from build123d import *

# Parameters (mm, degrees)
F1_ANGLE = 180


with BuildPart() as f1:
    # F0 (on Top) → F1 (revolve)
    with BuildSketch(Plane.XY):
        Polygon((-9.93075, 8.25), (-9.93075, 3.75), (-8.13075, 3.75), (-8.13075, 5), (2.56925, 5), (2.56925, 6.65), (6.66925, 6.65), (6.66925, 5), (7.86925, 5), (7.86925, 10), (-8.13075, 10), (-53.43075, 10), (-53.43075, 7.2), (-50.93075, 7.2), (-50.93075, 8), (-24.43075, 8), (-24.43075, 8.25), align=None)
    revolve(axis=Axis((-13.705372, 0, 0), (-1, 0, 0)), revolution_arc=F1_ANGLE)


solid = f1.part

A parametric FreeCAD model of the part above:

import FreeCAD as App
import Part
import Sketcher

V = App.Vector
Q = App.Units.Quantity

doc = App.newDocument("Part")
body = doc.addObject("PartDesign::Body", "Body")

# Sketch on XY plane
sketch1 = body.newObject("Sketcher::SketchObject", "Sketch")
sketch1.AttachmentSupport = (doc.getObject("XY_Plane"), [""])
sketch1.MapMode = "FlatFace"
sketch1.addGeometry(Part.LineSegment(V(-9.93, 8.25, 0), V(-9.93, 3.75, 0)), False)
sketch1.addGeometry(Part.LineSegment(V(-9.93, 3.75, 0), V(-8.13, 3.75, 0)), False)
sketch1.addGeometry(Part.LineSegment(V(-8.13, 3.75, 0), V(-8.13, 5, 0)), False)
sketch1.addGeometry(Part.LineSegment(V(-8.13, 5, 0), V(2.57, 5, 0)), False)
sketch1.addGeometry(Part.LineSegment(V(2.57, 5, 0), V(2.57, 6.65, 0)), False)
sketch1.addGeometry(Part.LineSegment(V(2.57, 6.65, 0), V(6.67, 6.65, 0)), False)
sketch1.addGeometry(Part.LineSegment(V(6.67, 6.65, 0), V(6.67, 5, 0)), False)
sketch1.addGeometry(Part.LineSegment(V(6.67, 5, 0), V(7.87, 5, 0)), False)
sketch1.addGeometry(Part.LineSegment(V(7.87, 5, 0), V(7.87, 10, 0)), False)
sketch1.addGeometry(Part.LineSegment(V(7.87, 10, 0), V(-53.43, 10, 0)), False)
sketch1.addGeometry(Part.LineSegment(V(-53.43, 10, 0), V(-53.43, 7.2, 0)), False)
sketch1.addGeometry(Part.LineSegment(V(-53.43, 7.2, 0), V(-50.93, 7.2, 0)), False)
sketch1.addGeometry(Part.LineSegment(V(-50.93, 7.2, 0), V(-50.93, 8, 0)), False)
sketch1.addGeometry(Part.LineSegment(V(-50.93, 8, 0), V(-24.43, 8, 0)), False)
sketch1.addGeometry(Part.LineSegment(V(-24.43, 8, 0), V(-24.43, 8.25, 0)), False)
sketch1.addGeometry(Part.LineSegment(V(-24.43, 8.25, 0), V(-9.93, 8.25, 0)), False)
sketch1.addConstraint(Sketcher.Constraint("Coincident", 0, 2, 1, 1))
sketch1.addConstraint(Sketcher.Constraint("Coincident", 1, 2, 2, 1))
sketch1.addConstraint(Sketcher.Constraint("Coincident", 2, 2, 3, 1))
sketch1.addConstraint(Sketcher.Constraint("Coincident", 3, 2, 4, 1))
sketch1.addConstraint(Sketcher.Constraint("Coincident", 4, 2, 5, 1))
sketch1.addConstraint(Sketcher.Constraint("Coincident", 5, 2, 6, 1))
sketch1.addConstraint(Sketcher.Constraint("Coincident", 6, 2, 7, 1))
sketch1.addConstraint(Sketcher.Constraint("Coincident", 7, 2, 8, 1))
sketch1.addConstraint(Sketcher.Constraint("Coincident", 8, 2, 9, 1))
sketch1.addConstraint(Sketcher.Constraint("Coincident", 9, 2, 10, 1))
sketch1.addConstraint(Sketcher.Constraint("Coincident", 10, 2, 11, 1))
sketch1.addConstraint(Sketcher.Constraint("Coincident", 11, 2, 12, 1))
sketch1.addConstraint(Sketcher.Constraint("Coincident", 12, 2, 13, 1))
sketch1.addConstraint(Sketcher.Constraint("Coincident", 13, 2, 14, 1))
sketch1.addConstraint(Sketcher.Constraint("Coincident", 14, 2, 15, 1))
sketch1.addConstraint(Sketcher.Constraint("Coincident", 15, 2, 0, 1))
sketch1.addConstraint(Sketcher.Constraint("Vertical", 0))
sketch1.addConstraint(Sketcher.Constraint("Horizontal", 1))
sketch1.addConstraint(Sketcher.Constraint("Vertical", 2))
sketch1.addConstraint(Sketcher.Constraint("Horizontal", 3))
sketch1.addConstraint(Sketcher.Constraint("Vertical", 4))
sketch1.addConstraint(Sketcher.Constraint("Horizontal", 5))
sketch1.addConstraint(Sketcher.Constraint("Vertical", 6))
sketch1.addConstraint(Sketcher.Constraint("Horizontal", 7))
sketch1.addConstraint(Sketcher.Constraint("Vertical", 8))
sketch1.addConstraint(Sketcher.Constraint("Horizontal", 9))
sketch1.addConstraint(Sketcher.Constraint("Vertical", 10))
sketch1.addConstraint(Sketcher.Constraint("Horizontal", 11))
sketch1.addConstraint(Sketcher.Constraint("Vertical", 12))
sketch1.addConstraint(Sketcher.Constraint("Horizontal", 13))
sketch1.addConstraint(Sketcher.Constraint("Vertical", 14))
sketch1.addConstraint(Sketcher.Constraint("Horizontal", 15))
sketch1.addConstraint(Sketcher.Constraint("Horizontal", 3, 2, 6, 2))
sketch1.addConstraint(Sketcher.Constraint("DistanceY", 8, 1, 8, 2, Q("5 mm")))
sketch1.addConstraint(Sketcher.Constraint("DistanceX", 1, 1, 1, 2, Q("1.8 mm")))
sketch1.addConstraint(Sketcher.Constraint("DistanceX", 3, 1, 3, 2, Q("10.7 mm")))
sketch1.addConstraint(Sketcher.Constraint("DistanceX", 5, 1, 5, 2, Q("4.1 mm")))
sketch1.addConstraint(Sketcher.Constraint("DistanceX", 7, 1, 7, 2, Q("1.2 mm")))
sketch1.addConstraint(Sketcher.Constraint("DistanceX", 9, 2, 9, 1, Q("61.3 mm")))
sketch1.addConstraint(Sketcher.Constraint("DistanceX", 11, 1, 11, 2, Q("2.5 mm")))
sketch1.addConstraint(Sketcher.Constraint("DistanceX", 13, 1, 13, 2, Q("26.5 mm")))
sketch1.addConstraint(Sketcher.Constraint("DistanceY", 0, 2, 0, 1, Q("4.5 mm")))
sketch1.addConstraint(Sketcher.Constraint("DistanceY", 10, 2, 10, 1, Q("2.8 mm")))
sketch1.addConstraint(Sketcher.Constraint("DistanceY", 12, 1, 12, 2, Q("0.8 mm")))
sketch1.addConstraint(Sketcher.Constraint("DistanceY", -1, 1, 2, 2, Q("5 mm")))
sketch1.addConstraint(Sketcher.Constraint("DistanceY", 2, 1, 2, 2, Q("1.25 mm")))
sketch1.addConstraint(Sketcher.Constraint("DistanceY", 4, 1, 4, 2, Q("1.65 mm")))
sketch1.addConstraint(Sketcher.Constraint("DistanceX", 0, 2, -1, 1, Q("9.93075 mm")))
revolution = body.newObject("PartDesign::Revolution", "Revolution")
revolution.Profile = sketch1
revolution.ReferenceAxis = (sketch1, ["H_Axis"])
revolution.Angle = 180
revolution.Reversed = True

doc.recompute()
